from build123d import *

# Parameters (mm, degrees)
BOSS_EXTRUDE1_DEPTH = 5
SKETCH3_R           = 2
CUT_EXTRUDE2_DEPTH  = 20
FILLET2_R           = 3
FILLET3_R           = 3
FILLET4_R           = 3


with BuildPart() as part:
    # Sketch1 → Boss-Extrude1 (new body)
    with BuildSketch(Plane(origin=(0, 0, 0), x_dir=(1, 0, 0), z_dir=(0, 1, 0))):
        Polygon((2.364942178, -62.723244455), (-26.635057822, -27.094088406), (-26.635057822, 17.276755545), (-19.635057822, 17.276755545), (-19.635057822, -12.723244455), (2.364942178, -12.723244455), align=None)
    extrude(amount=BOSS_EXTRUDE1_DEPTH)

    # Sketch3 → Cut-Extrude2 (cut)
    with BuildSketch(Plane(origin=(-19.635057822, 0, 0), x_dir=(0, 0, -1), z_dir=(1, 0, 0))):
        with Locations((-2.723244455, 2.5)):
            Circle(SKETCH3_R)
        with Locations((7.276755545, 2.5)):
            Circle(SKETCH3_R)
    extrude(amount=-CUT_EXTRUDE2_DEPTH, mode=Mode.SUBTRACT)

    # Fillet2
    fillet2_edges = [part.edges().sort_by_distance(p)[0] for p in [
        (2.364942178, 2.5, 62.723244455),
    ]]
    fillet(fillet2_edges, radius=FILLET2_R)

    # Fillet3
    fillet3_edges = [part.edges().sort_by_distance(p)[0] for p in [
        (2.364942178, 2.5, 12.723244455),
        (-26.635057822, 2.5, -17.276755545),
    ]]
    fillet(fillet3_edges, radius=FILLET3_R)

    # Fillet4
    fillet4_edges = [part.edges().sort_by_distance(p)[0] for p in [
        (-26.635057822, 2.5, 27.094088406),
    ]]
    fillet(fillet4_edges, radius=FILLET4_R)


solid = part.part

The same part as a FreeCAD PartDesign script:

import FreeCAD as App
import Part
import Sketcher


def edges_at(feature, points):
    """Names of the edges that pass closest to the given points."""
    edges = feature.Shape.Edges
    near = lambda p: min(range(len(edges)), key=lambda i: edges[i].distToShape(Part.Vertex(*p))[0])
    return sorted({f"Edge{near(p) + 1}" for p in points})


def add_polygon(sketch, points):
    """Adds a closed chain of lines whose ends are joined by coincident constraints."""
    first, n = sketch.GeometryCount, len(points)
    for a, b in zip(points, points[1:] + points[:1]):
        sketch.addGeometry(Part.LineSegment(App.Vector(*a, 0), App.Vector(*b, 0)), False)
    for i in range(n):
        sketch.addConstraint(Sketcher.Constraint("Coincident", first + i, 2, first + (i + 1) % n, 1))

doc = App.newDocument("Part")
body = doc.addObject("PartDesign::Body", "Body")

# Sketch on XZ plane
sketch1 = body.newObject("Sketcher::SketchObject", "Sketch")
sketch1.AttachmentSupport = (doc.getObject("XZ_Plane"), [""])
sketch1.MapMode = "FlatFace"
add_polygon(sketch1, [(-27, 27), (2, 63), (2, 13), (-20, 13), (-20, -17), (-27, -17)])  # lines 0-5
sketch1.addConstraint(Sketcher.Constraint("Vertical", 1))
sketch1.addConstraint(Sketcher.Constraint("Horizontal", 2))
sketch1.addConstraint(Sketcher.Constraint("Vertical", 3))
sketch1.addConstraint(Sketcher.Constraint("Horizontal", 4))
sketch1.addConstraint(Sketcher.Constraint("Vertical", 5))
sketch1.addConstraint(Sketcher.Constraint("DistanceX", 2, 2, 2, 1, 22.0))
sketch1.addConstraint(Sketcher.Constraint("DistanceX", 4, 2, 4, 1, 7.0))
sketch1.addConstraint(Sketcher.Constraint("DistanceY", 1, 2, 1, 1, 50.0))
sketch1.addConstraint(Sketcher.Constraint("DistanceY", 3, 2, 3, 1, 30.0))
sketch1.addConstraint(Sketcher.Constraint("Distance", 0, 45.93949))
sketch1.addConstraint(Sketcher.Constraint("DistanceY", -1, 1, 5, 2, 27.094088))
sketch1.addConstraint(Sketcher.Constraint("DistanceX", -1, 1, 0, 2, 2.364942))
pad1 = body.newObject("PartDesign::Pad", "Pad")
pad1.Profile = sketch1
pad1.Length = 5
pad1.Reversed = True

# Sketch on YZ plane
sketch2 = body.newObject("Sketcher::SketchObject", "Sketch001")
sketch2.AttachmentSupport = (doc.getObject("YZ_Plane"), [""])
sketch2.MapMode = "FlatFace"
sketch2.AttachmentOffset = App.Placement(App.Vector(0, 0, -19.635058), App.Rotation())
sketch2.addGeometry(Part.Circle(App.Vector(2.5, 2.7, 0), App.Vector(0, 0, 1), 2), False)
sketch2.addGeometry(Part.Circle(App.Vector(2.5, -7.3, 0), App.Vector(0, 0, 1), 2), False)
sketch2.addConstraint(Sketcher.Constraint("Equal", 0, 1))
sketch2.addConstraint(Sketcher.Constraint("Vertical", 0, 3, 1, 3))
sketch2.addConstraint(Sketcher.Constraint("Diameter", 0, 4.0))
sketch2.addConstraint(Sketcher.Constraint("DistanceY", 1, 3, 0, 3, 10.0))
sketch2.addConstraint(Sketcher.Constraint("DistanceX", -1, 1, 0, 3, 2.5))
sketch2.addConstraint(Sketcher.Constraint("DistanceY", -1, 1, 0, 3, 2.723244))
pocket1 = body.newObject("PartDesign::Pocket", "Pocket")
pocket1.Profile = sketch2
pocket1.Length = 20
doc.recompute()

fillet = body.newObject("PartDesign::Fillet", "Fillet")
fillet.Base = (pocket1, edges_at(pocket1, [(2.365, 2.5, 62.723)]))
fillet.Radius = 3
doc.recompute()

fillet2 = body.newObject("PartDesign::Fillet", "Fillet001")
fillet2.Base = (fillet, edges_at(fillet, [(2.365, 2.5, 12.723), (-26.635, 2.5, -17.277)]))
fillet2.Radius = 3
doc.recompute()

fillet3 = body.newObject("PartDesign::Fillet", "Fillet002")
fillet3.Base = (fillet2, edges_at(fillet2, [(-26.635, 2.5, 27.094)]))
fillet3.Radius = 3

doc.recompute()
